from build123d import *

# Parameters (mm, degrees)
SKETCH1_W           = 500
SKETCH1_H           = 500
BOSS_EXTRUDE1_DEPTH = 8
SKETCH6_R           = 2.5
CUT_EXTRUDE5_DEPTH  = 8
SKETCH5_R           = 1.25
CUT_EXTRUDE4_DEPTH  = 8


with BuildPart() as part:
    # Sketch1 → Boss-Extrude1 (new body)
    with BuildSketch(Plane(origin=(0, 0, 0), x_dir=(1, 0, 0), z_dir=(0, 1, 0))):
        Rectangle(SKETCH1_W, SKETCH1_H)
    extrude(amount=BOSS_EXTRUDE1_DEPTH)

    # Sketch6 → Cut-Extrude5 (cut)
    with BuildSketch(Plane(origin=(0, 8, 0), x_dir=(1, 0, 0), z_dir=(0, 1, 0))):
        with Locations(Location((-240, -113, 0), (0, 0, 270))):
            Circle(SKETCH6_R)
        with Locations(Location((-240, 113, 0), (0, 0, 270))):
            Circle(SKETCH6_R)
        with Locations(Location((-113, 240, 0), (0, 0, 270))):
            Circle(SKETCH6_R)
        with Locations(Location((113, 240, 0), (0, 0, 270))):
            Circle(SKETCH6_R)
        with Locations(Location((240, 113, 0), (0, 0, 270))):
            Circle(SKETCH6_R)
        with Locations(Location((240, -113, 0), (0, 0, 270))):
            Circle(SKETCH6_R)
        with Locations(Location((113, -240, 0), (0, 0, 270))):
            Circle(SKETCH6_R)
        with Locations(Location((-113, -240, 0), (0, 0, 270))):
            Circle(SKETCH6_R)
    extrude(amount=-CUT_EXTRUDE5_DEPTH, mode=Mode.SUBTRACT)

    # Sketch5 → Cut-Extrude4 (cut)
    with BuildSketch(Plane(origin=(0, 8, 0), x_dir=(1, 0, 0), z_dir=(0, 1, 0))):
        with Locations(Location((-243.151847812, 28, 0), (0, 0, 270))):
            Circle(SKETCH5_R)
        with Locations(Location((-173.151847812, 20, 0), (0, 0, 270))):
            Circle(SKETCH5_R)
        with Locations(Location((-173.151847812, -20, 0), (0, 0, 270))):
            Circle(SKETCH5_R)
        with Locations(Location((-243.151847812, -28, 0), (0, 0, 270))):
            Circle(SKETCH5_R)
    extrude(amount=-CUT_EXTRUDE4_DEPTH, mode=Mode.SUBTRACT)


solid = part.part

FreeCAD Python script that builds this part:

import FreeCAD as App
import Part
import Sketcher


def add_polygon(sketch, points):
    """Adds a closed chain of lines whose ends are joined by coincident constraints."""
    first, n = sketch.GeometryCount, len(points)
    for a, b in zip(points, points[1:] + points[:1]):
        sketch.addGeometry(Part.LineSegment(App.Vector(*a, 0), App.Vector(*b, 0)), False)
    for i in range(n):
        sketch.addConstraint(Sketcher.Constraint("Coincident", first + i, 2, first + (i + 1) % n, 1))

doc = App.newDocument("Part")
body = doc.addObject("PartDesign::Body", "Body")

sketch1 = body.newObject("Sketcher::SketchObject", "Sketch")
sketch1.AttachmentSupport = (doc.getObject("XZ_Plane"), [""])
sketch1.MapMode = "FlatFace"
add_polygon(sketch1, [(-250, -250), (-250, 250), (250, 250), (250, -250)])
sketch1.addConstraint([
    Sketcher.Constraint("Vertical", 0),
    Sketcher.Constraint("Horizontal", 1),
    Sketcher.Constraint("Vertical", 2),
    Sketcher.Constraint("Horizontal", 3),
    Sketcher.Constraint("Symmetric", 0, 2, 2, 2, -1, 1),
    Sketcher.Constraint("Equal", 3, 0),
    Sketcher.Constraint("DistanceX", 1, 1, 1, 2, 500.0),
])
pad1 = body.newObject("PartDesign::Pad", "Pad")
pad1.Profile = sketch1
pad1.Length = 8
pad1.Reversed = True

sketch2 = body.newObject("Sketcher::SketchObject", "Sketch001")
sketch2.AttachmentSupport = (doc.getObject("XZ_Plane"), [""])
sketch2.MapMode = "FlatFace"
sketch2.AttachmentOffset = App.Placement(App.Vector(0, 0, -8), App.Rotation())
sketch2.addGeometry([
    Part.Circle(App.Vector(-240, 113, 0), App.Vector(0, 0, 1), 2.5),
    Part.Circle(App.Vector(-240, -113, 0), App.Vector(0, 0, 1), 2.5),
    Part.Circle(App.Vector(-113, -240, 0), App.Vector(0, 0, 1), 2.5),
    Part.Circle(App.Vector(113, -240, 0), App.Vector(0, 0, 1), 2.5),
    Part.Circle(App.Vector(240, -113, 0), App.Vector(0, 0, 1), 2.5),
    Part.Circle(App.Vector(240, 113, 0), App.Vector(0, 0, 1), 2.5),
    Part.Circle(App.Vector(113, 240, 0), App.Vector(0, 0, 1), 2.5),
    Part.Circle(App.Vector(-113, 240, 0), App.Vector(0, 0, 1), 2.5),
], False)
sketch2.addConstraint([
    Sketcher.Constraint("Equal", 0, 1),
    Sketcher.Constraint("Equal", 1, 2),
    Sketcher.Constraint("Equal", 2, 3),
    Sketcher.Constraint("Equal", 3, 4),
    Sketcher.Constraint("Equal", 4, 5),
    Sketcher.Constraint("Equal", 5, 6),
    Sketcher.Constraint("Equal", 6, 7),
    Sketcher.Constraint("Symmetric", 0, 3, 4, 3, -1, 1),
    Sketcher.Constraint("Symmetric", 1, 3, 5, 3, -1, 1),
    Sketcher.Constraint("Symmetric", 2, 3, 6, 3, -1, 1),
    Sketcher.Constraint("Symmetric", 3, 3, 7, 3, -1, 1),
    Sketcher.Constraint("Symmetric", 2, 3, 3, 3, -2),
    Sketcher.Constraint("Symmetric", 1, 3, 4, 3, -2),
    Sketcher.Constraint("Diameter", 0, 5.0),
    Sketcher.Constraint("DistanceX", 0, 3, -1, 1, 240.0),
    Sketcher.Constraint("DistanceY", -1, 1, 0, 3, 113.0),
    Sketcher.Constraint("DistanceX", 2, 3, -1, 1, 113.0),
    Sketcher.Constraint("DistanceY", 2, 3, -1, 1, 240.0),
])
pocket1 = body.newObject("PartDesign::Pocket", "Pocket")
pocket1.Profile = sketch2
pocket1.Length = 8
pocket1.Reversed = True

sketch3 = body.newObject("Sketcher::SketchObject", "Sketch002")
sketch3.AttachmentSupport = (doc.getObject("XZ_Plane"), [""])
sketch3.MapMode = "FlatFace"
sketch3.AttachmentOffset = App.Placement(App.Vector(0, 0, -8), App.Rotation())
sketch3.addGeometry([
    Part.Circle(App.Vector(-243.2, -28, 0), App.Vector(0, 0, 1), 1.2),
    Part.Circle(App.Vector(-173.2, -20, 0), App.Vector(0, 0, 1), 1.2),
    Part.Circle(App.Vector(-173.2, 20, 0), App.Vector(0, 0, 1), 1.2),
    Part.Circle(App.Vector(-243.2, 28, 0), App.Vector(0, 0, 1), 1.2),
], False)
sketch3.addConstraint([
    Sketcher.Constraint("Equal", 0, 1),
    Sketcher.Constraint("Equal", 1, 2),
    Sketcher.Constraint("Equal", 2, 3),
    Sketcher.Constraint("Symmetric", 1, 3, 2, 3, -1),
    Sketcher.Constraint("Symmetric", 0, 3, 3, 3, -1),
    Sketcher.Constraint("Diameter", 0, 2.5),
    Sketcher.Constraint("DistanceY", 0, 3, -1, 1, 28.0),
    Sketcher.Constraint("DistanceY", 1, 3, -1, 1, 20.0),
    Sketcher.Constraint("DistanceX", 0, 3, 1, 3, 70.0),
    Sketcher.Constraint("DistanceX", 0, 3, -1, 1, 243.151848),
])
pocket2 = body.newObject("PartDesign::Pocket", "Pocket001")
pocket2.Profile = sketch3
pocket2.Length = 8
pocket2.Reversed = True

doc.recompute()
